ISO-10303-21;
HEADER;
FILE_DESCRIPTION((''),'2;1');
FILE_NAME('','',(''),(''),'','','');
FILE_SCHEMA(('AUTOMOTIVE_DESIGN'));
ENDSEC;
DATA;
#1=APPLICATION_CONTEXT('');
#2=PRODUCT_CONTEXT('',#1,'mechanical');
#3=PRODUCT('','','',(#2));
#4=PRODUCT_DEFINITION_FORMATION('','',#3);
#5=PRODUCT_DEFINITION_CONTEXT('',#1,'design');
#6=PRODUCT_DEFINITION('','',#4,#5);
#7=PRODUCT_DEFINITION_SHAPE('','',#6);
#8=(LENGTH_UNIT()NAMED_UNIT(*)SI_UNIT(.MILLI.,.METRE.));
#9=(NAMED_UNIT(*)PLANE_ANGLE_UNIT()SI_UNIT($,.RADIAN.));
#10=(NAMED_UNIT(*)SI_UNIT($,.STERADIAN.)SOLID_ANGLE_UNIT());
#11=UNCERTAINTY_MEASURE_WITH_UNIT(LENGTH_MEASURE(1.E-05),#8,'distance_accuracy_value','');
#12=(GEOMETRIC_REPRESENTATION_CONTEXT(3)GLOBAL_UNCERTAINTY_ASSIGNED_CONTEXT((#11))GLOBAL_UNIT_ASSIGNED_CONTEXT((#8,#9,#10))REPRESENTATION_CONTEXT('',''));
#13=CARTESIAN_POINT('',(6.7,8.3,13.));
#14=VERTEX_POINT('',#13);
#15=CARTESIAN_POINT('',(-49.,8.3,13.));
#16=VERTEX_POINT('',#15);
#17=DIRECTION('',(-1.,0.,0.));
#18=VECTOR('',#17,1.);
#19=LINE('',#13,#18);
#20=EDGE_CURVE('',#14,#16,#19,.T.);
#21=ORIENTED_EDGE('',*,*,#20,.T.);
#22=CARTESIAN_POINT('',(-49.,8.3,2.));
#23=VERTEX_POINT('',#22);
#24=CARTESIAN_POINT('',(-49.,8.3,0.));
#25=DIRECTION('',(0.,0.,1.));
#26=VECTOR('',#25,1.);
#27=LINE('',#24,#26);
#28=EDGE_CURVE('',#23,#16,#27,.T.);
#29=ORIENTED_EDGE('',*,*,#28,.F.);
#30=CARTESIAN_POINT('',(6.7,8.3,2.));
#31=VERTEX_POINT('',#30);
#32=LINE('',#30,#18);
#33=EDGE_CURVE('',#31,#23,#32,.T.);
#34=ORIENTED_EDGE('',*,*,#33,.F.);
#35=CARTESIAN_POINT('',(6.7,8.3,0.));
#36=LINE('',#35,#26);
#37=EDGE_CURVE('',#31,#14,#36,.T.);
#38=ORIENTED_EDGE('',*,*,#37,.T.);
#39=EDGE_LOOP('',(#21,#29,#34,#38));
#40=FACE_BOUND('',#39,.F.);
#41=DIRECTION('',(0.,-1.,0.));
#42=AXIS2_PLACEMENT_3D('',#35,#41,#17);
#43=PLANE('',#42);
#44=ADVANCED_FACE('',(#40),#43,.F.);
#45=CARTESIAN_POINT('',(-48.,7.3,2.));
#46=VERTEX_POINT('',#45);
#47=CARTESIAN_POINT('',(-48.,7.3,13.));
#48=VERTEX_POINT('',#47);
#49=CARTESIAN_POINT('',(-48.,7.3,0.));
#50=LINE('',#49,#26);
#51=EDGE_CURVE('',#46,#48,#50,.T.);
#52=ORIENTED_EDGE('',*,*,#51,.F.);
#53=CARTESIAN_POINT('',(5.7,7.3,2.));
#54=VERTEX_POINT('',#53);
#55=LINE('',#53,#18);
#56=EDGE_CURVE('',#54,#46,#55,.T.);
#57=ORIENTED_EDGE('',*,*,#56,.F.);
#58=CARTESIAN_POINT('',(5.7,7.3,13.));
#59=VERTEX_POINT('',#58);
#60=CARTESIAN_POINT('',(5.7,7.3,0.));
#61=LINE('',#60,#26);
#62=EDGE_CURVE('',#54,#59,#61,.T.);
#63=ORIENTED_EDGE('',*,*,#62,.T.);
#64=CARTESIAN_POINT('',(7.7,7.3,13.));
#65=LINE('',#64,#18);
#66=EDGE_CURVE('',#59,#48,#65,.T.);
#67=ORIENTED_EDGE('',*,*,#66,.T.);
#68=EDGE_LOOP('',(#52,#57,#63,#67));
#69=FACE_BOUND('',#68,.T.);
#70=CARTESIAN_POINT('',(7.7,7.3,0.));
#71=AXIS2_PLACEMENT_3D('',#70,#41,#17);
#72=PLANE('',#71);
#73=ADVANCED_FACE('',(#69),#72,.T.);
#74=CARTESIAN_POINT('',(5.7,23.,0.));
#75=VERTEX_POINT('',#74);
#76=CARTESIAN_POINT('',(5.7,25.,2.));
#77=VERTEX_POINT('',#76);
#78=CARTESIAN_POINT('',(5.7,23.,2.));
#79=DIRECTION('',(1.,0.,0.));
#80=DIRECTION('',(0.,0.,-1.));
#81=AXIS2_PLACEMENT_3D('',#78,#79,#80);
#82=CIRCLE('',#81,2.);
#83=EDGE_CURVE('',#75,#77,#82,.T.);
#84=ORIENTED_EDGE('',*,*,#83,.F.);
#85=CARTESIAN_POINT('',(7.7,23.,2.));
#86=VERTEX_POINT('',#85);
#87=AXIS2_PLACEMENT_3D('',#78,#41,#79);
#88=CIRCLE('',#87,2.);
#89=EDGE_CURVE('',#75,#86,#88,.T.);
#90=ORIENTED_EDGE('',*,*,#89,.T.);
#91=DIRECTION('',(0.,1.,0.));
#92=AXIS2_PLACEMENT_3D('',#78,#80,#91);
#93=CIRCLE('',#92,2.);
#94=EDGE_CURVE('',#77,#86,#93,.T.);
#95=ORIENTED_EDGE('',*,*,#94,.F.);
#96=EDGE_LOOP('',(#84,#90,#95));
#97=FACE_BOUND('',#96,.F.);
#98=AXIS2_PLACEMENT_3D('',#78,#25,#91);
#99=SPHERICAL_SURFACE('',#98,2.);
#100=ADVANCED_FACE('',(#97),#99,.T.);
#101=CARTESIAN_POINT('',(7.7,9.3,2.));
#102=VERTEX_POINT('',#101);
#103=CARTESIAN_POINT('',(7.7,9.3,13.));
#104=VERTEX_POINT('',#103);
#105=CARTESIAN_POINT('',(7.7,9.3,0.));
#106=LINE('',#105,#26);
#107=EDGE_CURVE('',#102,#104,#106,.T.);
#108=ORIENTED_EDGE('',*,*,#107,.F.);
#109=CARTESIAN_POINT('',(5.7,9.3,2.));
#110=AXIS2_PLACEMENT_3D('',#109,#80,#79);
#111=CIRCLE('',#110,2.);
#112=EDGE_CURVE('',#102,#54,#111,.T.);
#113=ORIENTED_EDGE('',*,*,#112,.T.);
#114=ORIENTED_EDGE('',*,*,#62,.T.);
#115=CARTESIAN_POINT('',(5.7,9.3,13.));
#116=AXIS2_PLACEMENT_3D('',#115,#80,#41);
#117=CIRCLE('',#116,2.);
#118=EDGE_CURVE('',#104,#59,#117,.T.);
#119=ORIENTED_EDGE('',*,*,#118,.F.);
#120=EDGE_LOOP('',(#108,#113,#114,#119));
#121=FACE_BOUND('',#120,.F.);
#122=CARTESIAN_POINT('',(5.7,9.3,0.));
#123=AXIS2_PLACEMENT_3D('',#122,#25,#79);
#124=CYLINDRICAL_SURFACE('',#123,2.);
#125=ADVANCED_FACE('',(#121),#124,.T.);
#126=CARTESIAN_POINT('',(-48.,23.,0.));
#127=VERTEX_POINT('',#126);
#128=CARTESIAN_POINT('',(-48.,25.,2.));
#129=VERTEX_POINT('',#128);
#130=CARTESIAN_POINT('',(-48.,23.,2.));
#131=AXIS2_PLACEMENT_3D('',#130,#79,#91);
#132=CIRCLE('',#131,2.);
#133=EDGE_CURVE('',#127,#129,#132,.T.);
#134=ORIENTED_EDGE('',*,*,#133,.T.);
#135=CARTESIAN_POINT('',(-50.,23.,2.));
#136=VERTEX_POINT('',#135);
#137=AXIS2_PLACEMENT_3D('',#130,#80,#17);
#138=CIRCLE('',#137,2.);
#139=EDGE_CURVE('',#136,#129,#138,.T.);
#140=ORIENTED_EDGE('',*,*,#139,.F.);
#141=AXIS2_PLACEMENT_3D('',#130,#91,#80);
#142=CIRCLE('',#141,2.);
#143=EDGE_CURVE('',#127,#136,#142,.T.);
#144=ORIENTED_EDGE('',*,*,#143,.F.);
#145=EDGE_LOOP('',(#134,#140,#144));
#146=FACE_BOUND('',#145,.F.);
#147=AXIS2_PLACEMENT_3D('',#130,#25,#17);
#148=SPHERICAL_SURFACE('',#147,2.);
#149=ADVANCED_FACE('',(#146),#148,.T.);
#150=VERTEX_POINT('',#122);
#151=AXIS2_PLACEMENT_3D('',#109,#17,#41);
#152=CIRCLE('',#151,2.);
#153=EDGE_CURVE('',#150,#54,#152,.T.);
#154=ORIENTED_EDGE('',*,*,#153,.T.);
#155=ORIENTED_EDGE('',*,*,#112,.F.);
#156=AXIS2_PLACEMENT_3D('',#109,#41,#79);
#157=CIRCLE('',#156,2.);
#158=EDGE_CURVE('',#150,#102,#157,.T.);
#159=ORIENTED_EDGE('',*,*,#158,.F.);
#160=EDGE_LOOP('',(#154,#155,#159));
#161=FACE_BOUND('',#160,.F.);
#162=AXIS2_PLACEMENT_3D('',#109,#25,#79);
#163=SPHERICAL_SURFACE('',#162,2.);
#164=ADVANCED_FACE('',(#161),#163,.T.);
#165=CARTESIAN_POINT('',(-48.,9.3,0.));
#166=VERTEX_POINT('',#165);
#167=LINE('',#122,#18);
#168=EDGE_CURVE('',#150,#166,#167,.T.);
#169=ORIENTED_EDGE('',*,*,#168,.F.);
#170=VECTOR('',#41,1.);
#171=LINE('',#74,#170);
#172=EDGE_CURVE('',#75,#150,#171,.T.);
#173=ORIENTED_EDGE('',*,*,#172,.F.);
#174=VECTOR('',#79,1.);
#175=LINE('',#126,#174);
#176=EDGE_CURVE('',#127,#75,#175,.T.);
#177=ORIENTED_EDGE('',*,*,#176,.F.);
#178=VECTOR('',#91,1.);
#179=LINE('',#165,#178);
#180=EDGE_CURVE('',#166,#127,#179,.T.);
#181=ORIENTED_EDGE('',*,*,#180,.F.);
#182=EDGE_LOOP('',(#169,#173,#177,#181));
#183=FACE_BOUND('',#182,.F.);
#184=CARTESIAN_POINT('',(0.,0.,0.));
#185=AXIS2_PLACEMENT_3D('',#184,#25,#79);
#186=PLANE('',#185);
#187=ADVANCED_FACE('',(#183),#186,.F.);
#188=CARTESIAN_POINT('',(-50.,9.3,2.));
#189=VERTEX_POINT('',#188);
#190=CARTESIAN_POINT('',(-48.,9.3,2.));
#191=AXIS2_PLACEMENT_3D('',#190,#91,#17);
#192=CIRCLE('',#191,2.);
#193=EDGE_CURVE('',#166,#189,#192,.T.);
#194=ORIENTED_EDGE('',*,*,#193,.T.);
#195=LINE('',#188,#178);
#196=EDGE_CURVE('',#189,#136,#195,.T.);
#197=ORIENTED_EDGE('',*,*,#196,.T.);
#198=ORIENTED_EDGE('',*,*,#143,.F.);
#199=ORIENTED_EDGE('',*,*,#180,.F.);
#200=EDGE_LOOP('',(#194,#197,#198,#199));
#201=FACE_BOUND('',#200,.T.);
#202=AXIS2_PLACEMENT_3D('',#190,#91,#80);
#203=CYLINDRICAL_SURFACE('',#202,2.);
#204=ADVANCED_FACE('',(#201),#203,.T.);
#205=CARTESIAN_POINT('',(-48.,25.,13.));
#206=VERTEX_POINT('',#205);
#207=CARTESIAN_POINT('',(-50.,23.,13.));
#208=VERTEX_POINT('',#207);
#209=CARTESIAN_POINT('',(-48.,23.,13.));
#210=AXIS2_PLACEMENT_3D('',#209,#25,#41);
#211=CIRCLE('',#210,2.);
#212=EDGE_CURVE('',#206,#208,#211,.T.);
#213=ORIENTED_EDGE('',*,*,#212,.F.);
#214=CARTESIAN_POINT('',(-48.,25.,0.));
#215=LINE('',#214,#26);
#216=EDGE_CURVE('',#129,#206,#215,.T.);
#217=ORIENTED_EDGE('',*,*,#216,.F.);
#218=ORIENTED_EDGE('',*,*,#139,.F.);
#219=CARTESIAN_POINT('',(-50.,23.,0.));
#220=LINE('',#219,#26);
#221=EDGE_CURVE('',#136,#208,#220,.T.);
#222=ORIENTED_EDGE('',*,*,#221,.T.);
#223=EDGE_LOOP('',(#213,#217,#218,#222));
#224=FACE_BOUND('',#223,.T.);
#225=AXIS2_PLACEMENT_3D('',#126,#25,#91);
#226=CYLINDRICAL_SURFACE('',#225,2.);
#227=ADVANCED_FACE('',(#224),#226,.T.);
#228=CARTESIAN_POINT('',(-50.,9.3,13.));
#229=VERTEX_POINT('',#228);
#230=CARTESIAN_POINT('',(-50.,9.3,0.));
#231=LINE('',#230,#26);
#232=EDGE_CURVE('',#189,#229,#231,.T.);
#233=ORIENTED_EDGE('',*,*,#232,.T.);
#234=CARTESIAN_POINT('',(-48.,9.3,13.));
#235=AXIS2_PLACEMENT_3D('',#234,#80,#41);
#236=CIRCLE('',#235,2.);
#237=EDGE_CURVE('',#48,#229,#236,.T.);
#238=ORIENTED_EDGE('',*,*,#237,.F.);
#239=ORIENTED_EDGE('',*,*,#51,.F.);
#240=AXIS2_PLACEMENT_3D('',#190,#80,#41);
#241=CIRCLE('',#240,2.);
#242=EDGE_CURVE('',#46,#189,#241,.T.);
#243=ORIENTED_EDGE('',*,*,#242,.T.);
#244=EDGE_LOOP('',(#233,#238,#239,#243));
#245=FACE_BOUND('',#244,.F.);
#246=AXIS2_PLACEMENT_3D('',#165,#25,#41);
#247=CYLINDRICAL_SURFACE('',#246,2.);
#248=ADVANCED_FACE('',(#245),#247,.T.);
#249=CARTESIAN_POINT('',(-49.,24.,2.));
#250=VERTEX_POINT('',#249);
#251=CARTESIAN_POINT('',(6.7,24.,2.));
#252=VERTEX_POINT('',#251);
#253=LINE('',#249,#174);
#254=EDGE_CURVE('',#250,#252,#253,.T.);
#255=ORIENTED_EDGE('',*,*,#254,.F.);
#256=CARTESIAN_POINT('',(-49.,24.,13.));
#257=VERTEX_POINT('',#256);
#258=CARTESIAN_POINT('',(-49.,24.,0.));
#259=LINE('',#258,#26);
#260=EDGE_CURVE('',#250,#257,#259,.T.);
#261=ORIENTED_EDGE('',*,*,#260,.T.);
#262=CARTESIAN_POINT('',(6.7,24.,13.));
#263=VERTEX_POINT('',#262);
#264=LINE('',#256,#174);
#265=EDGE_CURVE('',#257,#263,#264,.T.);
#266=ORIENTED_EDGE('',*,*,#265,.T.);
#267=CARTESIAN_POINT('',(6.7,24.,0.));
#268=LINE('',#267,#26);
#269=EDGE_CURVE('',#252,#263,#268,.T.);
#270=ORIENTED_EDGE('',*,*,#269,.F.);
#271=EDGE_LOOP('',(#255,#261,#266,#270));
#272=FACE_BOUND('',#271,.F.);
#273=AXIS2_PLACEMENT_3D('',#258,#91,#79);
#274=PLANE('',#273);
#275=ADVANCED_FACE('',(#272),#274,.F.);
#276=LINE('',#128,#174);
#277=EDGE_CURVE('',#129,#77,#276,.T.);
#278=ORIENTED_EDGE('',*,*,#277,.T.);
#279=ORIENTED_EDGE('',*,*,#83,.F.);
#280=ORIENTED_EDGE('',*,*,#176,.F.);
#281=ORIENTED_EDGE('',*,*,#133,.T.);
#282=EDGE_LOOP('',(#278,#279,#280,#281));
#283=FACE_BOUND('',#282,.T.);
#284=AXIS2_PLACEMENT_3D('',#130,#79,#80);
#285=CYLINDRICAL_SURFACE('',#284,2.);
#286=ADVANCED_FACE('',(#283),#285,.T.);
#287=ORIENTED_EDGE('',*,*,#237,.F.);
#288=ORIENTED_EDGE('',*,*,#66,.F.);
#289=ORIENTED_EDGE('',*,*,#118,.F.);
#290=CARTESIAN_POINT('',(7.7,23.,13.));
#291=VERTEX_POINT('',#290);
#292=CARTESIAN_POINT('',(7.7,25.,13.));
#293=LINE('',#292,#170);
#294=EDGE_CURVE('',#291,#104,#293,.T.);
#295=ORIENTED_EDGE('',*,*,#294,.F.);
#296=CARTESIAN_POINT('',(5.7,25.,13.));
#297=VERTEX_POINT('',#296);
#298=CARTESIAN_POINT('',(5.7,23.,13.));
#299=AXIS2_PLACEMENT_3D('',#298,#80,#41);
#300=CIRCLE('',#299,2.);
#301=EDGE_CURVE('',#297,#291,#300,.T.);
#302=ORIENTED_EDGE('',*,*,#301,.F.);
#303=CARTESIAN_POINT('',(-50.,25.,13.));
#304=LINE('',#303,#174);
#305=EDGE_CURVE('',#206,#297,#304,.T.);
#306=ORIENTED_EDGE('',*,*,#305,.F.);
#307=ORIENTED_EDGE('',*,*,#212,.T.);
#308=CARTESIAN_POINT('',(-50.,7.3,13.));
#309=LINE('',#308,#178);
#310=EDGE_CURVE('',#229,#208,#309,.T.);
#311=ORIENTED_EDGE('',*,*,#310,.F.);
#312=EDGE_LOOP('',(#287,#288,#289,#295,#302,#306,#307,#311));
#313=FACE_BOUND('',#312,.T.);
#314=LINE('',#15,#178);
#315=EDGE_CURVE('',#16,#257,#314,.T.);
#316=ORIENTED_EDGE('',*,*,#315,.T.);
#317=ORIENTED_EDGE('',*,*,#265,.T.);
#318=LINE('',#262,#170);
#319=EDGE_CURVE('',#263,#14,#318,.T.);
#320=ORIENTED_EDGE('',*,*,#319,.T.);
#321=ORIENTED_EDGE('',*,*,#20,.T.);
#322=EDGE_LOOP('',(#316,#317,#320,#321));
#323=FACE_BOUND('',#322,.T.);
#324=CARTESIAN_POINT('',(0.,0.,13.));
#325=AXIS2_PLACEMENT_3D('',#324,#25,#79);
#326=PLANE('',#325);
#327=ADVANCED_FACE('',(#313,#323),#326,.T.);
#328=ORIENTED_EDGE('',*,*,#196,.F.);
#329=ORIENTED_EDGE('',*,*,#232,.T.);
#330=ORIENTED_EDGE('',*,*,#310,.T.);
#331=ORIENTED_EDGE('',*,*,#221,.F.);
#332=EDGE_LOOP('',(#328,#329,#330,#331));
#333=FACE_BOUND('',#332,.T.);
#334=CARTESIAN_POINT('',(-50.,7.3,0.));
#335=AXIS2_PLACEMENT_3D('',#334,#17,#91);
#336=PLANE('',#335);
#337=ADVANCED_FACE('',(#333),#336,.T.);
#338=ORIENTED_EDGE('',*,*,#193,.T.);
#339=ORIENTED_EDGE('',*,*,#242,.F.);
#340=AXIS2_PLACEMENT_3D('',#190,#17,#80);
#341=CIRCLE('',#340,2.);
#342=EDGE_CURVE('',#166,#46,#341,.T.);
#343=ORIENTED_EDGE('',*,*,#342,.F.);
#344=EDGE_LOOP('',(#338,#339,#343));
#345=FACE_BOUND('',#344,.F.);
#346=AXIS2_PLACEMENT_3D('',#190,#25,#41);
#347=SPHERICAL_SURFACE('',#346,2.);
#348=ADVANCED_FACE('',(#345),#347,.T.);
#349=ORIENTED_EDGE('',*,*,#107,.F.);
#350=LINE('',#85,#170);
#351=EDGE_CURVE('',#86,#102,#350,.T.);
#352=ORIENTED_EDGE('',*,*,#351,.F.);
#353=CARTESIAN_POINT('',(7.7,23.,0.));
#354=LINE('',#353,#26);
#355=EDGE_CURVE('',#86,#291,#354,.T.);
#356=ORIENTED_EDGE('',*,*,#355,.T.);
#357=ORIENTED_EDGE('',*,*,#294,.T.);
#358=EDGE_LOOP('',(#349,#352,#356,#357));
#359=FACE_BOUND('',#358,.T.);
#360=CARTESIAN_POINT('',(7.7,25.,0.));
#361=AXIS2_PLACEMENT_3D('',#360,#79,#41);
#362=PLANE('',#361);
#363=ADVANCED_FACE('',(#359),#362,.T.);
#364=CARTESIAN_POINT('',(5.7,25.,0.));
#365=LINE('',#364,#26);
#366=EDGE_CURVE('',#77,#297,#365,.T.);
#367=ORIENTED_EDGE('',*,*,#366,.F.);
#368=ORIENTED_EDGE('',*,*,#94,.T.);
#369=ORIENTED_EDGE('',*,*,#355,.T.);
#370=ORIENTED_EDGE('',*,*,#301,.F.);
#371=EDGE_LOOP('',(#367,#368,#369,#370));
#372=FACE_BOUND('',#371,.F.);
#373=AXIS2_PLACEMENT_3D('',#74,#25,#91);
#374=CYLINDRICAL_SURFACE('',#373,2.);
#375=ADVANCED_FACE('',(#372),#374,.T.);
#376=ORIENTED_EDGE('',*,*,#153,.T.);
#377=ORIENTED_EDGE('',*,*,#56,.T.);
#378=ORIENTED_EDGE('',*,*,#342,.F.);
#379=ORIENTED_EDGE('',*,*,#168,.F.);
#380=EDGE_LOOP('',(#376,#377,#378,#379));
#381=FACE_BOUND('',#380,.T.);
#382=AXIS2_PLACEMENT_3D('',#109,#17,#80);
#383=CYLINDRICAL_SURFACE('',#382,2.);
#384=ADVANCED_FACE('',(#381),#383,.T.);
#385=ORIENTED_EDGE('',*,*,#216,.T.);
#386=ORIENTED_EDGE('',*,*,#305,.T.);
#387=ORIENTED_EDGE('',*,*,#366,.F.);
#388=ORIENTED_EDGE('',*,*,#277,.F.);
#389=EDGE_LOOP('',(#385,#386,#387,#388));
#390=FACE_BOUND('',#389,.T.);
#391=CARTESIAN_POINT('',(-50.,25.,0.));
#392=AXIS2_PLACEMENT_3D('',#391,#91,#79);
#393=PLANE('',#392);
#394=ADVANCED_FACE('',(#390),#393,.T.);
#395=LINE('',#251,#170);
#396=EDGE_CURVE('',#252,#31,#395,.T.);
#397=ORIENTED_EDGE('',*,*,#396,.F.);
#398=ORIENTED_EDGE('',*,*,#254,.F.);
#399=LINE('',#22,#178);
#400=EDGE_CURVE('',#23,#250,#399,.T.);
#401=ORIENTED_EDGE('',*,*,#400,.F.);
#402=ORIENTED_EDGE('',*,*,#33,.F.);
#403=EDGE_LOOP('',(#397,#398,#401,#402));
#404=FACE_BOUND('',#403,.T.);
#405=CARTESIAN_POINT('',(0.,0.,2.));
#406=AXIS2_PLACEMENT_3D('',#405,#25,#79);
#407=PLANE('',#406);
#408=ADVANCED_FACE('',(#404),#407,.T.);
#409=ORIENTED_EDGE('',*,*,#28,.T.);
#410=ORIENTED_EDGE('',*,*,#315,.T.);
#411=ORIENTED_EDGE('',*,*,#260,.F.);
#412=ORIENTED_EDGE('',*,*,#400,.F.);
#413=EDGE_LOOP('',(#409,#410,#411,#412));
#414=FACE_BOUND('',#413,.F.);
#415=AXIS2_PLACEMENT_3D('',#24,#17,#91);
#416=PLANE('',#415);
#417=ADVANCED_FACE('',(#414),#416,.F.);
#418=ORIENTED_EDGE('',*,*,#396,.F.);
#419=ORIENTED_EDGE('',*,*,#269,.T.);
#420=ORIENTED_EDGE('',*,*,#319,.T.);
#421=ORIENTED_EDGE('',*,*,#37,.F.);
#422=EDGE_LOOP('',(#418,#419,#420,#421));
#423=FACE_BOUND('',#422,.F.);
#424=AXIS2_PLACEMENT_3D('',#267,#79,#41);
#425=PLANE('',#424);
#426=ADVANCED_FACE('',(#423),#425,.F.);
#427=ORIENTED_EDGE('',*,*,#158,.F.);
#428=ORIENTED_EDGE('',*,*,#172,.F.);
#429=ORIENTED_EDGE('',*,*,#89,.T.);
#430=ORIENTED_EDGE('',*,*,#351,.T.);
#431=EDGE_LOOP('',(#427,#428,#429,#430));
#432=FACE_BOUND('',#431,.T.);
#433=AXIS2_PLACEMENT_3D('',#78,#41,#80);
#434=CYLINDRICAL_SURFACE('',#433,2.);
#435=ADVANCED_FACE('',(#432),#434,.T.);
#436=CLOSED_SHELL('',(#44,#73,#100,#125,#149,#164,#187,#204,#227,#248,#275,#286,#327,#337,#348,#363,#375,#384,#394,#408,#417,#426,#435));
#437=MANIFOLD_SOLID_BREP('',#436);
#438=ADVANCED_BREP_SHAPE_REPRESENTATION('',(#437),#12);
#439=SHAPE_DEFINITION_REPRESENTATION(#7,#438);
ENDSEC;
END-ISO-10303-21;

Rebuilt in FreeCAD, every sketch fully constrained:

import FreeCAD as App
import Part
import Sketcher


def edges_at(feature, points):
    """Names of the edges that pass closest to the given points."""
    edges = feature.Shape.Edges
    near = lambda p: min(range(len(edges)), key=lambda i: edges[i].distToShape(Part.Vertex(*p))[0])
    return sorted({f"Edge{near(p) + 1}" for p in points})


def add_polygon(sketch, points):
    """Adds a closed chain of lines whose ends are joined by coincident constraints."""
    first, n = sketch.GeometryCount, len(points)
    for a, b in zip(points, points[1:] + points[:1]):
        sketch.addGeometry(Part.LineSegment(App.Vector(*a, 0), App.Vector(*b, 0)), False)
    for i in range(n):
        sketch.addConstraint(Sketcher.Constraint("Coincident", first + i, 2, first + (i + 1) % n, 1))

doc = App.newDocument("Part")
body = doc.addObject("PartDesign::Body", "Body")

# Sketch on XY plane
sketch1 = body.newObject("Sketcher::SketchObject", "Sketch")
sketch1.AttachmentSupport = (doc.getObject("XY_Plane"), [""])
sketch1.MapMode = "FlatFace"
add_polygon(sketch1, [(-49, 8), (7, 8), (7, 24), (-49, 24)])  # lines 0-3
sketch1.addConstraint(Sketcher.Constraint("Horizontal", 0))
sketch1.addConstraint(Sketcher.Constraint("Vertical", 1))
sketch1.addConstraint(Sketcher.Constraint("Horizontal", 2))
sketch1.addConstraint(Sketcher.Constraint("Vertical", 3))
sketch1.addConstraint(Sketcher.Constraint("DistanceX", 0, 1, 0, 2, 55.7))
sketch1.addConstraint(Sketcher.Constraint("DistanceY", 1, 1, 1, 2, 15.7))
sketch1.addConstraint(Sketcher.Constraint("DistanceY", -1, 1, 1, 2, 24.0))
sketch1.addConstraint(Sketcher.Constraint("DistanceX", 2, 2, -1, 1, 49.0))
pad1 = body.newObject("PartDesign::Pad", "Pad")
pad1.Profile = sketch1
pad1.Length = 2

# Sketch on XY plane
sketch2 = body.newObject("Sketcher::SketchObject", "Sketch001")
sketch2.AttachmentSupport = (doc.getObject("XY_Plane"), [""])
sketch2.MapMode = "FlatFace"
add_polygon(sketch2, [(8, 25), (-50, 25), (-50, 7), (8, 7)])  # lines 0-3
add_polygon(sketch2, [(7, 24), (7, 8), (-49, 8), (-49, 24)])  # lines 4-7
sketch2.addConstraint(Sketcher.Constraint("Horizontal", 0))
sketch2.addConstraint(Sketcher.Constraint("Vertical", 1))
sketch2.addConstraint(Sketcher.Constraint("Horizontal", 2))
sketch2.addConstraint(Sketcher.Constraint("Vertical", 3))
sketch2.addConstraint(Sketcher.Constraint("Vertical", 4))
sketch2.addConstraint(Sketcher.Constraint("Horizontal", 5))
sketch2.addConstraint(Sketcher.Constraint("Vertical", 6))
sketch2.addConstraint(Sketcher.Constraint("Horizontal", 7))
sketch2.addConstraint(Sketcher.Constraint("DistanceX", 0, 2, 0, 1, 57.7))
sketch2.addConstraint(Sketcher.Constraint("DistanceX", 5, 2, 5, 1, 55.7))
sketch2.addConstraint(Sketcher.Constraint("DistanceY", 1, 2, 1, 1, 17.7))
sketch2.addConstraint(Sketcher.Constraint("DistanceY", 4, 2, 4, 1, 15.7))
sketch2.addConstraint(Sketcher.Constraint("DistanceX", 0, 2, -1, 1, 50.0))
sketch2.addConstraint(Sketcher.Constraint("DistanceY", -1, 1, 0, 2, 25.0))
sketch2.addConstraint(Sketcher.Constraint("DistanceX", 5, 2, -1, 1, 49.0))
sketch2.addConstraint(Sketcher.Constraint("DistanceY", -1, 1, 6, 2, 24.0))
pad2 = body.newObject("PartDesign::Pad", "Pad001")
pad2.Profile = sketch2
pad2.Length = 13
doc.recompute()

fillet = body.newObject("PartDesign::Fillet", "Fillet")
fillet.Base = (pad2, edges_at(pad2, [
    (7.7, 7.3, 6.5),
    (7.7, 25, 6.5),
    (-50, 7.3, 6.5),
    (-50, 25, 6.5),
]))
fillet.Radius = 2
doc.recompute()

fillet2 = body.newObject("PartDesign::Fillet", "Fillet001")
fillet2.Base = (fillet, edges_at(fillet, [
    (7.114, 7.886, 0),
    (-21.15, 7.3, 0),
    (-49.414, 7.886, 0),
    (-50, 16.15, 0),
    (-49.414, 24.414, 0),
    (-21.15, 25, 0),
    (7.114, 24.414, 0),
    (7.7, 16.15, 0),
]))
fillet2.Radius = 2

doc.recompute()
